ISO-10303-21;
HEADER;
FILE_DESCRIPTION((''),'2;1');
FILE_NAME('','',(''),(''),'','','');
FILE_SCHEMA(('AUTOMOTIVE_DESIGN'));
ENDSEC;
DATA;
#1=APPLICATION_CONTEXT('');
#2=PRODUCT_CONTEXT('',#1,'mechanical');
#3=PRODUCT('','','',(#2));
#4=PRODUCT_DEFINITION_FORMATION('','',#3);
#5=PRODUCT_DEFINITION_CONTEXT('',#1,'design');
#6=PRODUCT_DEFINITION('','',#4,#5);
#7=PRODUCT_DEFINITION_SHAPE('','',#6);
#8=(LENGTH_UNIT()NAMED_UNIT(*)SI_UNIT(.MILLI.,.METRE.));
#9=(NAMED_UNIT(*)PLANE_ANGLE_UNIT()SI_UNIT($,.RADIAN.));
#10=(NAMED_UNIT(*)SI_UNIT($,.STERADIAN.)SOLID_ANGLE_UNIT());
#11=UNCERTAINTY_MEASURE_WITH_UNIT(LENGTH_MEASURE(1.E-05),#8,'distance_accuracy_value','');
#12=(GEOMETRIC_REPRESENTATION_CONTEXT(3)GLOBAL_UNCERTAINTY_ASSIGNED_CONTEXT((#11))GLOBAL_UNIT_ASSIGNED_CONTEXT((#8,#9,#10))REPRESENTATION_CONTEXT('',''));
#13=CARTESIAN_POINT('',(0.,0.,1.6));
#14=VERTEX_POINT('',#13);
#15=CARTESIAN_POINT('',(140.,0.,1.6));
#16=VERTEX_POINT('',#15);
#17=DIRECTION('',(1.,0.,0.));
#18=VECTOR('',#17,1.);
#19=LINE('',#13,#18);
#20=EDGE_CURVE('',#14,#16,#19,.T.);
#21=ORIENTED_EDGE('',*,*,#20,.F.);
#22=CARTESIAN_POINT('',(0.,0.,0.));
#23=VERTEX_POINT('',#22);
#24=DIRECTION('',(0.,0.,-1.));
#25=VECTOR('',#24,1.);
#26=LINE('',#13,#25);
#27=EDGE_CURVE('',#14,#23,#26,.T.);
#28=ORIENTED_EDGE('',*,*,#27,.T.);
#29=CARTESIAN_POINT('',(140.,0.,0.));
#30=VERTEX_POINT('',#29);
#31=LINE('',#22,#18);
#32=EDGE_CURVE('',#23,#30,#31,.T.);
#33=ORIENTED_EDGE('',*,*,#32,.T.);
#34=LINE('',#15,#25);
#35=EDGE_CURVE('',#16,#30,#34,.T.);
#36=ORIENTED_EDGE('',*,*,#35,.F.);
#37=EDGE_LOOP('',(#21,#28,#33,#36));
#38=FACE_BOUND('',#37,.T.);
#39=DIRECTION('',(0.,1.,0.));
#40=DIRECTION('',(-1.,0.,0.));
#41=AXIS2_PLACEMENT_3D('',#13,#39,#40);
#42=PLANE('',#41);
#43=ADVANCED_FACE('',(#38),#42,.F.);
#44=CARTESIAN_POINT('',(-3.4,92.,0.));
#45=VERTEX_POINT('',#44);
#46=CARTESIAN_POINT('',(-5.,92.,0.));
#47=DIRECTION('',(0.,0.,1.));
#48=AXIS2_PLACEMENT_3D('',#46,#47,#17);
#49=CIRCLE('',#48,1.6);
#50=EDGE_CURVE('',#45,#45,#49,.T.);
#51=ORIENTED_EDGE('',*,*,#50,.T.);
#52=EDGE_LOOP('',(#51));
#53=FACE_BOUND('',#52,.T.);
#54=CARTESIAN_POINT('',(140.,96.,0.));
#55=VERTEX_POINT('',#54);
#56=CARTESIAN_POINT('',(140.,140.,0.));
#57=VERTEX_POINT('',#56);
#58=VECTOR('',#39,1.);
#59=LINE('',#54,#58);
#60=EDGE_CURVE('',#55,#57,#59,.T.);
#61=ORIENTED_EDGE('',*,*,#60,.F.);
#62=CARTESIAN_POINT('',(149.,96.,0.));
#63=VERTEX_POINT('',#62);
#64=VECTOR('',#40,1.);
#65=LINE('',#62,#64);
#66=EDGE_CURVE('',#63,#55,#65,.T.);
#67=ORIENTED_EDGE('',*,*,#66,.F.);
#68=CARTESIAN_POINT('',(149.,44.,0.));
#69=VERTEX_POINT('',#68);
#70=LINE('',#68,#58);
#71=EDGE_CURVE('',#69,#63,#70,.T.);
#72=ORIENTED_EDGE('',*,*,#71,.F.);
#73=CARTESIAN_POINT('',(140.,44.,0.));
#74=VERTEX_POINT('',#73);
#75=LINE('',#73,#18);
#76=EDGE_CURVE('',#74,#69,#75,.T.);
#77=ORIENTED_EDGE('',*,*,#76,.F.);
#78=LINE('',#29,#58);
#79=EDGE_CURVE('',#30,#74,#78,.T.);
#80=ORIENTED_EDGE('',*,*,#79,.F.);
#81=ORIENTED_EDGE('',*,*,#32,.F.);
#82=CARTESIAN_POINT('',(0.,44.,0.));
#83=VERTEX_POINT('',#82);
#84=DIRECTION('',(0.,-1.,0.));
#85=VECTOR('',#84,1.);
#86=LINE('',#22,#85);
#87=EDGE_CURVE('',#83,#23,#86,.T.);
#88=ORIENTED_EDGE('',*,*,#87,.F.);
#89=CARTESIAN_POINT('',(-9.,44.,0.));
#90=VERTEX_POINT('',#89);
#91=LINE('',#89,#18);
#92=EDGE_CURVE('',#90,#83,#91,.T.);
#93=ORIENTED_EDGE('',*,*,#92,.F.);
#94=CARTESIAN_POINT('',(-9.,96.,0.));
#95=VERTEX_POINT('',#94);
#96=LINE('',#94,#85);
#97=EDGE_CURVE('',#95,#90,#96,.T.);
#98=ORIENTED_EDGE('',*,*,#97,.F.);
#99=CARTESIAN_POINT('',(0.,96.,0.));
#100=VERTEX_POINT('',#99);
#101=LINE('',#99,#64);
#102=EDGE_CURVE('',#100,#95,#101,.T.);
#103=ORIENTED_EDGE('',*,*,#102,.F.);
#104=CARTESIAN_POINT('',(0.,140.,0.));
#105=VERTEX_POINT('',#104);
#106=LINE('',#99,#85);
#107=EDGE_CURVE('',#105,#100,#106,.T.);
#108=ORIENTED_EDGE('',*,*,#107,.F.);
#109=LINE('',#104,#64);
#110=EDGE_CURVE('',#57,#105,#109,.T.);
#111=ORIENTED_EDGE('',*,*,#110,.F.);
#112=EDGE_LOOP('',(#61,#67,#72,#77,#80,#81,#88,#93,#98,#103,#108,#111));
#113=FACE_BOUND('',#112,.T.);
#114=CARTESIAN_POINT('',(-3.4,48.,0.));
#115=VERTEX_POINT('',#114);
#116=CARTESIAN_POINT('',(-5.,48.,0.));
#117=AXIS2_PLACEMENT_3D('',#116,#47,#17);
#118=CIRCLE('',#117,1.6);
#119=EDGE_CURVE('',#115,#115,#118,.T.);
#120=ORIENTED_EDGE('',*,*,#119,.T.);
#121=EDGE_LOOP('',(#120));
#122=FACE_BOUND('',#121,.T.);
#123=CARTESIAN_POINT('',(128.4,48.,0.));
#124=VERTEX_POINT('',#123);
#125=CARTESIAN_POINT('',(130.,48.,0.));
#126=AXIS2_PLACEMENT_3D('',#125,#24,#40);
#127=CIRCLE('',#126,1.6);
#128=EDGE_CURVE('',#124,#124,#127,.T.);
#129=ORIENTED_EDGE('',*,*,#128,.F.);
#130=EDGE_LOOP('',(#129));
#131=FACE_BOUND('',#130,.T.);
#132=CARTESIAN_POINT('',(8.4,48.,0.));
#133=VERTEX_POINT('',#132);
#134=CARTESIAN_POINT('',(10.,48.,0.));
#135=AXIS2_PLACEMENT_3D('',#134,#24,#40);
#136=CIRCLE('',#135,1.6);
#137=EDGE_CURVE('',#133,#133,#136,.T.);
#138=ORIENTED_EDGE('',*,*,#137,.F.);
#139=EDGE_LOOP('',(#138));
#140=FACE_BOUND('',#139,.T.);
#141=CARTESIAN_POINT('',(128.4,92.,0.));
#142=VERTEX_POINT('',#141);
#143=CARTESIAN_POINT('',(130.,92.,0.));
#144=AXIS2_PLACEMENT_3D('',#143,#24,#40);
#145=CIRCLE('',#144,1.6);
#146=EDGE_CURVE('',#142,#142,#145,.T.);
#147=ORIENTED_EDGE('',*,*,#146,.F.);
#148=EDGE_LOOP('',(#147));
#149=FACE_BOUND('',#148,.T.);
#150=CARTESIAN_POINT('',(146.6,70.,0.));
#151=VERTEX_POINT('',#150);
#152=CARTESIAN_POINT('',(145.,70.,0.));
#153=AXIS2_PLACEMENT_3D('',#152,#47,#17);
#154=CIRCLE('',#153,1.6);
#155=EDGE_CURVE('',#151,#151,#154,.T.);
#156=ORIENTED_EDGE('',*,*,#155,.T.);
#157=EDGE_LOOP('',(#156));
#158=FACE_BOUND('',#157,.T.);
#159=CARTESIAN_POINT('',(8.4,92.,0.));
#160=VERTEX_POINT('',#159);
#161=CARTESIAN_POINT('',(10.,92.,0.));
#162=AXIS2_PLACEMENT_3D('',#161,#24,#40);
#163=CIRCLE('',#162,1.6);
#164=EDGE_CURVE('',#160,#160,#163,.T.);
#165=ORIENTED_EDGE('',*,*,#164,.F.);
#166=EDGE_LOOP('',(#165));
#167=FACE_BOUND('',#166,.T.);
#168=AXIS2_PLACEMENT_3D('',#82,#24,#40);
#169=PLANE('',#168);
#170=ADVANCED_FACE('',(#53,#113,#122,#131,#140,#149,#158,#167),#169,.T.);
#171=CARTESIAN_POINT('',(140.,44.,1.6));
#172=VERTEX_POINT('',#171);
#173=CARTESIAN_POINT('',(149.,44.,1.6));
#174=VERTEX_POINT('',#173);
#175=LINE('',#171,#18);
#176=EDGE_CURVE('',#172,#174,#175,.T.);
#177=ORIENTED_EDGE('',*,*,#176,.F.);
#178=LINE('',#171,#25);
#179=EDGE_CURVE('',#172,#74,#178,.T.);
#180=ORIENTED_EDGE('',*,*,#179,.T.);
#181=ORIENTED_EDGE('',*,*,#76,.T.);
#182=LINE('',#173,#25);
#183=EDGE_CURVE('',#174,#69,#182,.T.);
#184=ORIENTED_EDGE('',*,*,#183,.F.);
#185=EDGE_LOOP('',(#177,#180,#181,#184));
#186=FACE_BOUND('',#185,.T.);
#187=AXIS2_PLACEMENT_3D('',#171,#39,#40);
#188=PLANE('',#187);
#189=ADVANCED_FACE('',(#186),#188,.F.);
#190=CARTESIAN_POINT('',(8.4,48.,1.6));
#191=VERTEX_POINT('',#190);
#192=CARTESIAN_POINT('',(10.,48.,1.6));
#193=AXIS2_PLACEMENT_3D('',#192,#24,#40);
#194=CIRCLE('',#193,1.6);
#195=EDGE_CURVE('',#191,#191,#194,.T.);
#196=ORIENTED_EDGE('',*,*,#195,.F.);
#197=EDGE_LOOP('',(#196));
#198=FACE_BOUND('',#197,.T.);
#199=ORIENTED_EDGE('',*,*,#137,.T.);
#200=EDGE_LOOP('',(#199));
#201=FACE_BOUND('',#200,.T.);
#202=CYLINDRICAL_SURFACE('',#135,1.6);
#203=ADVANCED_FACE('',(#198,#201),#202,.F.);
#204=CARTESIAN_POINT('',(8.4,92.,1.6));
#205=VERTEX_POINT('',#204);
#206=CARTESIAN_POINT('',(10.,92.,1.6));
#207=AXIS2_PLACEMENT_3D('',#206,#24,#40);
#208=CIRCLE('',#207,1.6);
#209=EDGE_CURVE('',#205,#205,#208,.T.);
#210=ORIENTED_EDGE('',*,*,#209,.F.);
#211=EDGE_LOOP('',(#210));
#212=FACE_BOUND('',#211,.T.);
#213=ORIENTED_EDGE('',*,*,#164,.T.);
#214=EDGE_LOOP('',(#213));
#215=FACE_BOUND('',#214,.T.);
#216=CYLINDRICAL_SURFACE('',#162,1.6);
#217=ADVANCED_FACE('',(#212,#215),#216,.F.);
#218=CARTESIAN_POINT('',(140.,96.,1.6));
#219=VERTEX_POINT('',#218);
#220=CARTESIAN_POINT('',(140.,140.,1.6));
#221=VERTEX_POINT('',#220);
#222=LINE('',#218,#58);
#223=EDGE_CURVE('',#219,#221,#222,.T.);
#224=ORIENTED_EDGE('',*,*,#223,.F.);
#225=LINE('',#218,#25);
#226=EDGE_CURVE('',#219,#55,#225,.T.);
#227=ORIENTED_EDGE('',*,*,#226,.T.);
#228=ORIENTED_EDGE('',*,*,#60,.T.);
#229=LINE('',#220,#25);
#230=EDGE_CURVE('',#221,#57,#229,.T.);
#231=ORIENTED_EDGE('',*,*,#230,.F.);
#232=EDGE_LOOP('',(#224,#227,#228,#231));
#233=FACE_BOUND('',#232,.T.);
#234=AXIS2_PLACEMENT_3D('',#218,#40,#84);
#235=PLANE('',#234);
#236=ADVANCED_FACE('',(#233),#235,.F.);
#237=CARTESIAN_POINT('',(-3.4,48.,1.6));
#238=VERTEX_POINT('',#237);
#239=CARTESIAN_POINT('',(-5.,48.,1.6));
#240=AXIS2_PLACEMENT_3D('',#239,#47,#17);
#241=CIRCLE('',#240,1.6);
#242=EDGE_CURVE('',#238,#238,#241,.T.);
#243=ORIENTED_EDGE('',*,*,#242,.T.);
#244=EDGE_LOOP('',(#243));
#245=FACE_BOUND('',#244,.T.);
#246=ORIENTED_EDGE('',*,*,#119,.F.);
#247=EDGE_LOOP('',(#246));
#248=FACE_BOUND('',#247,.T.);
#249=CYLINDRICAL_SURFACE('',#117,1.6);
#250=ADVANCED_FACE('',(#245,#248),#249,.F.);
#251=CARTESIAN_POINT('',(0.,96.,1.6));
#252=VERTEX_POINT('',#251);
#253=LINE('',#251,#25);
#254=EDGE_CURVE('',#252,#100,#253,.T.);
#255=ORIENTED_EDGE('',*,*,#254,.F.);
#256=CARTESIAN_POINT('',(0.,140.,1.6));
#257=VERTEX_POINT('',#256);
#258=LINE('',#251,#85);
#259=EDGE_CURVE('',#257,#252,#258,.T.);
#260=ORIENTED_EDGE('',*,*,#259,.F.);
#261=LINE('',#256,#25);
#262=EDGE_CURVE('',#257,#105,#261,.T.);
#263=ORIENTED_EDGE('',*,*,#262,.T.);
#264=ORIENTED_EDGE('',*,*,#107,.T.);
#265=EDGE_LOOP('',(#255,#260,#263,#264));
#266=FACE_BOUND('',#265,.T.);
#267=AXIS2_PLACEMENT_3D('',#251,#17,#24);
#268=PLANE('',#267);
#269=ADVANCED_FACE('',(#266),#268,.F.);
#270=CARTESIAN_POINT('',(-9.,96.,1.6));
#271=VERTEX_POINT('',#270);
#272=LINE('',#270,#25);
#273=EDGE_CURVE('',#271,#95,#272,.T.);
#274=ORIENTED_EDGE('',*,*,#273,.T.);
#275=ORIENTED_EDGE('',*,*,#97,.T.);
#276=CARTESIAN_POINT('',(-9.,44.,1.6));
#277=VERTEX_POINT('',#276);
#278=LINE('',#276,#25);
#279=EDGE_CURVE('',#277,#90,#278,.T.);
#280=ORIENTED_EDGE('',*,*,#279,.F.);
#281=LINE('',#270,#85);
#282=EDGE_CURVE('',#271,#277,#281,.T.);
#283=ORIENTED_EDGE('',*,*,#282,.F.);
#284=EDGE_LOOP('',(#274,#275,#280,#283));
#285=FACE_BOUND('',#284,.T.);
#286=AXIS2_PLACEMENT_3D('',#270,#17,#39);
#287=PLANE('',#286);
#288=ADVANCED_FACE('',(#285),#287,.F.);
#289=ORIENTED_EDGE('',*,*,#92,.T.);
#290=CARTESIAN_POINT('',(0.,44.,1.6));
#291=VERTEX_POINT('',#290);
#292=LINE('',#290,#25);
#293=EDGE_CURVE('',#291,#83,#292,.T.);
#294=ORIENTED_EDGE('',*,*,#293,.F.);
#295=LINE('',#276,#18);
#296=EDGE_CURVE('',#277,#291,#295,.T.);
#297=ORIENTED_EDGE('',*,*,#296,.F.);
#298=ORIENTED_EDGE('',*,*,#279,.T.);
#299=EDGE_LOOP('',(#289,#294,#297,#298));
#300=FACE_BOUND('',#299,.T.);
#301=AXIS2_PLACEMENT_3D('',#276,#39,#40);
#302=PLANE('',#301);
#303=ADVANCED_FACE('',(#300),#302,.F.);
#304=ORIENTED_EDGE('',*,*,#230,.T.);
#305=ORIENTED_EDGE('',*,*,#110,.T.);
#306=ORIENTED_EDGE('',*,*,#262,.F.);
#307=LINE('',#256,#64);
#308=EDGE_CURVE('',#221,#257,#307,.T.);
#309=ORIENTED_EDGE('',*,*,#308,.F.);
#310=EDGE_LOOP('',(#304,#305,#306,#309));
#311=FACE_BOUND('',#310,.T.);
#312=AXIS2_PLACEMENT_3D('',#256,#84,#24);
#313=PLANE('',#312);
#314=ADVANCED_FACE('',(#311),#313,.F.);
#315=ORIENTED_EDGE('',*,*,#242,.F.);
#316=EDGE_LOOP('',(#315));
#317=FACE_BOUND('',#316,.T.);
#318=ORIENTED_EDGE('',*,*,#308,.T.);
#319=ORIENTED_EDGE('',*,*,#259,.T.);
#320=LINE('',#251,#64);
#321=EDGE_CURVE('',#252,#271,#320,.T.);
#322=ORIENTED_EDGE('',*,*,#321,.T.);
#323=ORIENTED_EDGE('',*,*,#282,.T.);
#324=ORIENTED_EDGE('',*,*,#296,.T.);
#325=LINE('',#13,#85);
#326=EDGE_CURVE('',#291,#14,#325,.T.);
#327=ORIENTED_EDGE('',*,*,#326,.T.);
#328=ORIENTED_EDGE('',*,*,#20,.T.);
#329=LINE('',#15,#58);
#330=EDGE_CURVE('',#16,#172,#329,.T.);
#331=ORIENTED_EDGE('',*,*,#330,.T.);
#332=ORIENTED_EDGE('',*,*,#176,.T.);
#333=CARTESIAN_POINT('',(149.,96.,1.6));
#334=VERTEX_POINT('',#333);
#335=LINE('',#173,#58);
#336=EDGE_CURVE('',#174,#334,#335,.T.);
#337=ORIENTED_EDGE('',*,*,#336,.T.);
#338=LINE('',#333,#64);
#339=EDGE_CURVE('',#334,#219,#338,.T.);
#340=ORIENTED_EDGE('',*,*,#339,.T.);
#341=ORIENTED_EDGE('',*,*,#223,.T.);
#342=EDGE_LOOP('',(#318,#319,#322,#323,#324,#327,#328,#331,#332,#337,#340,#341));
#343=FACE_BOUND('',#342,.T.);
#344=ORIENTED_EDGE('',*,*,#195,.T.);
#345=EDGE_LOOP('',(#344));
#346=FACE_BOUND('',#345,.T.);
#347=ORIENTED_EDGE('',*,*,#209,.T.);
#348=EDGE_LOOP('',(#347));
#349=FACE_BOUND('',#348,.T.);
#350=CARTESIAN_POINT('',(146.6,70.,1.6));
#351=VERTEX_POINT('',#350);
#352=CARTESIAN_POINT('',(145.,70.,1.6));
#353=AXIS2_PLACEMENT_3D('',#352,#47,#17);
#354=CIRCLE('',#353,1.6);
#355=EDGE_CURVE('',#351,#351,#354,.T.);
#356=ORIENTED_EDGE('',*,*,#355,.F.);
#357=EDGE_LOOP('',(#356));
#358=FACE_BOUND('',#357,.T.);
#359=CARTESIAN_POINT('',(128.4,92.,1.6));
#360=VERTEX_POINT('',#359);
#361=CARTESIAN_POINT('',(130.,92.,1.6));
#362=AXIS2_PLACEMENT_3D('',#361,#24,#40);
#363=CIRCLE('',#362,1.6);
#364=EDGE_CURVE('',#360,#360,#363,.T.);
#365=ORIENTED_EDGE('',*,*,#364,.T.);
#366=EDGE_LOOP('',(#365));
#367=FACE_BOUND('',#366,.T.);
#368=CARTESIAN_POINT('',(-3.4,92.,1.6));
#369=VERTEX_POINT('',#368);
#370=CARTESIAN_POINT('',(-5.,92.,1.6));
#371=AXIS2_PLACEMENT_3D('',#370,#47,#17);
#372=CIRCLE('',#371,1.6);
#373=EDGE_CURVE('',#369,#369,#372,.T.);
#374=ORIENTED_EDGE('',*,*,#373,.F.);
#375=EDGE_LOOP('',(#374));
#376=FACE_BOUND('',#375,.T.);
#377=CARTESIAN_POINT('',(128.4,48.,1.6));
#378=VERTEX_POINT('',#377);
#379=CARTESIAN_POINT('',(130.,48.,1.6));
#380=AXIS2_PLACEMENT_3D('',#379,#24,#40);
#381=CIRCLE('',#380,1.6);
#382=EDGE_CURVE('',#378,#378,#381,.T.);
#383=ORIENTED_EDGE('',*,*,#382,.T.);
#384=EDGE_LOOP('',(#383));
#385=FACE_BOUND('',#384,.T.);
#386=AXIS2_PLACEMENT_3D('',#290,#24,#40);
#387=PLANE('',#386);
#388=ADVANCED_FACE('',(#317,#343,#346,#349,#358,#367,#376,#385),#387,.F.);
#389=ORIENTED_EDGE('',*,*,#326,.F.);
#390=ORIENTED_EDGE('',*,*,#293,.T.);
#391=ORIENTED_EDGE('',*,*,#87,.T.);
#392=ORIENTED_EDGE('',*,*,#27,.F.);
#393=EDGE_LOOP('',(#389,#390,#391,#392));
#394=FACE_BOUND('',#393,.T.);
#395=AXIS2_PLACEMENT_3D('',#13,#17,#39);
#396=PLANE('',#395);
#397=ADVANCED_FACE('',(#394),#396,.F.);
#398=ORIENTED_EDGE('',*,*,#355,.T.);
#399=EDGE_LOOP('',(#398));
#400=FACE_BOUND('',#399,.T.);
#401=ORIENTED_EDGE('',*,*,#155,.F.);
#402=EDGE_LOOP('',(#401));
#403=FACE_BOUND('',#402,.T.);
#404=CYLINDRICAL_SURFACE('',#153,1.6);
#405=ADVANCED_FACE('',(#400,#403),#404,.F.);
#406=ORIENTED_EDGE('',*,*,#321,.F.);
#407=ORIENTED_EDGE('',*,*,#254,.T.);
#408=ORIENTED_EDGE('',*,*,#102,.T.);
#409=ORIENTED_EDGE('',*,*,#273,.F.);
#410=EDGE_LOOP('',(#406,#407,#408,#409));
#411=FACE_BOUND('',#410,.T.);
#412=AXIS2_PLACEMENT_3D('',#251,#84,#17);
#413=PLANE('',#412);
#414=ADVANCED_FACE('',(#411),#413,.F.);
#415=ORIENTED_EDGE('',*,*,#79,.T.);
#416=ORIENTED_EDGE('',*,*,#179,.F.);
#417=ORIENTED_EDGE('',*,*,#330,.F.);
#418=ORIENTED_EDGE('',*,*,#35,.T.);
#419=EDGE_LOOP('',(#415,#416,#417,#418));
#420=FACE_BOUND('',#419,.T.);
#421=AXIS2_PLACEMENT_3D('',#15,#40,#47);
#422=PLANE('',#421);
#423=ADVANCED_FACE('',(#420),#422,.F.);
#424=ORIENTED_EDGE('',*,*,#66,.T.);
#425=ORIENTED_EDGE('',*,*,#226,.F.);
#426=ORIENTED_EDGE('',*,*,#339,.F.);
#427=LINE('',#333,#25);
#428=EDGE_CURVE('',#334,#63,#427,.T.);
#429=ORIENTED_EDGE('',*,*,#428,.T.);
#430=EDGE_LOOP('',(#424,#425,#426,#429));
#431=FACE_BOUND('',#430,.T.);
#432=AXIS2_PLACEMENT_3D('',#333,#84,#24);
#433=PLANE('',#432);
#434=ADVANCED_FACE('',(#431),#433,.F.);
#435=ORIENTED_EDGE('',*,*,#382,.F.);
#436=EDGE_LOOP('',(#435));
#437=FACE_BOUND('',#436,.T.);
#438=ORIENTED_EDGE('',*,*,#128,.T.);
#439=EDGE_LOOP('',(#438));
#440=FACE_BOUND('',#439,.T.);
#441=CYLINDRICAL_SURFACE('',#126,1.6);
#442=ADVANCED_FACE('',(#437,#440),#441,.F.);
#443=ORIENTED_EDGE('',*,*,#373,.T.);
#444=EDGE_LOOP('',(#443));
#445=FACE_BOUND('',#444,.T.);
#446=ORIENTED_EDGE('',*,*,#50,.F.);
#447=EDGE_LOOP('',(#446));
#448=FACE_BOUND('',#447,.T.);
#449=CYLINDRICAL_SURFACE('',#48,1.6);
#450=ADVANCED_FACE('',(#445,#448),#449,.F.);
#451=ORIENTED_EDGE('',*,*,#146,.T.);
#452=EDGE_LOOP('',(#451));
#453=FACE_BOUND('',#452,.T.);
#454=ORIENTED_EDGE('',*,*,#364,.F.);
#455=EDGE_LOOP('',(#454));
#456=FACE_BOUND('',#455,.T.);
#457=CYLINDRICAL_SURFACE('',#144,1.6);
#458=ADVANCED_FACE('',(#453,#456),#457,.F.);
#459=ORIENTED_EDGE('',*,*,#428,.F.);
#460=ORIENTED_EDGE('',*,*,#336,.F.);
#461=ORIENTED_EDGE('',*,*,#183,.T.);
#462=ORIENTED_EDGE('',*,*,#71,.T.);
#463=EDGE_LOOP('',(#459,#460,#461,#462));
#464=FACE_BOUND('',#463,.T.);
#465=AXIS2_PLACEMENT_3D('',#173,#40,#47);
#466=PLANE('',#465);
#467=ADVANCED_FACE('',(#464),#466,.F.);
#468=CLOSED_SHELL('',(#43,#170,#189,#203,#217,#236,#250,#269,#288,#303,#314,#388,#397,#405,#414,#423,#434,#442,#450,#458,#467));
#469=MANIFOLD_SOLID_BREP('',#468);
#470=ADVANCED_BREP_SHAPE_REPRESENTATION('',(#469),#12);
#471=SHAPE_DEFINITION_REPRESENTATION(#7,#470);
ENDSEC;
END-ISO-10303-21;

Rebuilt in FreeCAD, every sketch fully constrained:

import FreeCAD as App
import Part
import Sketcher
Q = App.Units.Quantity


def add_polygon(sketch, points):
    """Adds a closed chain of lines whose ends are joined by coincident constraints."""
    first, n = sketch.GeometryCount, len(points)
    for a, b in zip(points, points[1:] + points[:1]):
        sketch.addGeometry(Part.LineSegment(App.Vector(*a, 0), App.Vector(*b, 0)), False)
    for i in range(n):
        sketch.addConstraint(Sketcher.Constraint("Coincident", first + i, 2, first + (i + 1) % n, 1))

doc = App.newDocument("Part")
body = doc.addObject("PartDesign::Body", "Body")

# Sketch on XY plane
sketch1 = doc.addObject("Sketcher::SketchObject", "Sketch")
body.addObject(sketch1)
sketch1.AttachmentSupport = (doc.XY_Plane, [""])
sketch1.MapMode = "FlatFace"
add_polygon(sketch1, [(0, 0), (140, 0), (140, 44), (149, 44), (149, 96), (140, 96), (140, 140), (0, 140), (0, 96), (-9, 96), (-9, 44), (0, 44)])  # lines 0-11
sketch1.addConstraint(Sketcher.Constraint("Horizontal", 0))
sketch1.addConstraint(Sketcher.Constraint("Vertical", 1))
sketch1.addConstraint(Sketcher.Constraint("Horizontal", 2))
sketch1.addConstraint(Sketcher.Constraint("Vertical", 3))
sketch1.addConstraint(Sketcher.Constraint("Horizontal", 4))
sketch1.addConstraint(Sketcher.Constraint("Vertical", 5))
sketch1.addConstraint(Sketcher.Constraint("Horizontal", 6))
sketch1.addConstraint(Sketcher.Constraint("Vertical", 7))
sketch1.addConstraint(Sketcher.Constraint("Horizontal", 8))
sketch1.addConstraint(Sketcher.Constraint("Vertical", 9))
sketch1.addConstraint(Sketcher.Constraint("Horizontal", 10))
sketch1.addConstraint(Sketcher.Constraint("Vertical", 11))
sketch1.addConstraint(Sketcher.Constraint("Coincident", 11, 2, -1, 1))
sketch1.addConstraint(Sketcher.Constraint("PointOnObject", 6, 2, -2))
sketch1.addConstraint(Sketcher.Constraint("Horizontal", 4, 2, 7, 2))
sketch1.addConstraint(Sketcher.Constraint("Horizontal", 2, 2, 9, 2))
sketch1.addConstraint(Sketcher.Constraint("Vertical", 1, 2, 4, 2))
sketch1.addConstraint(Sketcher.Constraint("Equal", 4, 8))
sketch1.addConstraint(Sketcher.Constraint("Equal", 1, 5))
sketch1.addConstraint(Sketcher.Constraint("DistanceX", 0, 1, 0, 2, Q("140 mm")))
sketch1.addConstraint(Sketcher.Constraint("DistanceX", 2, 1, 2, 2, Q("9 mm")))
sketch1.addConstraint(Sketcher.Constraint("DistanceY", 1, 1, 1, 2, Q("44 mm")))
sketch1.addConstraint(Sketcher.Constraint("DistanceY", 3, 1, 3, 2, Q("52 mm")))
pad1 = doc.addObject("PartDesign::Pad", "Pad")
body.addObject(pad1)
pad1.Profile = sketch1
pad1.Length = 1.6

# Sketch on XY plane
sketch2 = doc.addObject("Sketcher::SketchObject", "Sketch001")
body.addObject(sketch2)
sketch2.AttachmentSupport = (doc.XY_Plane, [""])
sketch2.MapMode = "FlatFace"
sketch2.addGeometry(Part.Circle(App.Vector(130, 92, 0), App.Vector(0, 0, 1), 1.6), False)
sketch2.addGeometry(Part.Circle(App.Vector(130, 48, 0), App.Vector(0, 0, 1), 1.6), False)
sketch2.addGeometry(Part.Circle(App.Vector(10, 92, 0), App.Vector(0, 0, 1), 1.6), False)
sketch2.addGeometry(Part.Circle(App.Vector(10, 48, 0), App.Vector(0, 0, 1), 1.6), False)
sketch2.addConstraint(Sketcher.Constraint("Equal", 0, 1))
sketch2.addConstraint(Sketcher.Constraint("Equal", 1, 2))
sketch2.addConstraint(Sketcher.Constraint("Equal", 2, 3))
sketch2.addConstraint(Sketcher.Constraint("Horizontal", 0, 3, 2, 3))
sketch2.addConstraint(Sketcher.Constraint("Horizontal", 1, 3, 3, 3))
sketch2.addConstraint(Sketcher.Constraint("Vertical", 0, 3, 1, 3))
sketch2.addConstraint(Sketcher.Constraint("Vertical", 2, 3, 3, 3))
sketch2.addConstraint(Sketcher.Constraint("Diameter", 0, Q("3.2 mm")))
sketch2.addConstraint(Sketcher.Constraint("DistanceX", -1, 1, 0, 3, Q("130 mm")))
sketch2.addConstraint(Sketcher.Constraint("DistanceY", -1, 1, 0, 3, Q("92 mm")))
sketch2.addConstraint(Sketcher.Constraint("DistanceY", -1, 1, 1, 3, Q("48 mm")))
sketch2.addConstraint(Sketcher.Constraint("DistanceX", -1, 1, 2, 3, Q("10 mm")))
doc.recompute()
hole = doc.addObject("PartDesign::Hole", "Hole")
body.addObject(hole)
hole.Profile = sketch2
hole.ThreadType = "None"
hole.Diameter = 3.2
hole.DepthType = "Dimension"
hole.Depth = 4
hole.DrillPoint = "Angled"
hole.DrillPointAngle = 118
hole.Reversed = True

# Sketch on XY plane
sketch3 = doc.addObject("Sketcher::SketchObject", "Sketch002")
body.addObject(sketch3)
sketch3.AttachmentSupport = (doc.XY_Plane, [""])
sketch3.MapMode = "FlatFace"
sketch3.AttachmentOffset = App.Placement(App.Vector(0, 0, 1.6), App.Rotation())
sketch3.addGeometry(Part.Circle(App.Vector(-5, 92, 0), App.Vector(0, 0, 1), 1.6), False)
sketch3.addGeometry(Part.Circle(App.Vector(-5, 48, 0), App.Vector(0, 0, 1), 1.6), False)
sketch3.addGeometry(Part.Circle(App.Vector(145, 70, 0), App.Vector(0, 0, 1), 1.6), False)
sketch3.addConstraint(Sketcher.Constraint("Equal", 0, 1))
sketch3.addConstraint(Sketcher.Constraint("Equal", 1, 2))
sketch3.addConstraint(Sketcher.Constraint("Vertical", 0, 3, 1, 3))
sketch3.addConstraint(Sketcher.Constraint("Diameter", 0, Q("3.2 mm")))
sketch3.addConstraint(Sketcher.Constraint("DistanceX", 0, 3, -1, 1, Q("5 mm")))
sketch3.addConstraint(Sketcher.Constraint("DistanceY", -1, 1, 0, 3, Q("92 mm")))
sketch3.addConstraint(Sketcher.Constraint("DistanceY", -1, 1, 1, 3, Q("48 mm")))
sketch3.addConstraint(Sketcher.Constraint("DistanceX", -1, 1, 2, 3, Q("145 mm")))
sketch3.addConstraint(Sketcher.Constraint("DistanceY", -1, 1, 2, 3, Q("70 mm")))
pocket1 = doc.addObject("PartDesign::Pocket", "Pocket")
body.addObject(pocket1)
pocket1.Profile = sketch3
pocket1.Type = "ThroughAll"

doc.recompute()
